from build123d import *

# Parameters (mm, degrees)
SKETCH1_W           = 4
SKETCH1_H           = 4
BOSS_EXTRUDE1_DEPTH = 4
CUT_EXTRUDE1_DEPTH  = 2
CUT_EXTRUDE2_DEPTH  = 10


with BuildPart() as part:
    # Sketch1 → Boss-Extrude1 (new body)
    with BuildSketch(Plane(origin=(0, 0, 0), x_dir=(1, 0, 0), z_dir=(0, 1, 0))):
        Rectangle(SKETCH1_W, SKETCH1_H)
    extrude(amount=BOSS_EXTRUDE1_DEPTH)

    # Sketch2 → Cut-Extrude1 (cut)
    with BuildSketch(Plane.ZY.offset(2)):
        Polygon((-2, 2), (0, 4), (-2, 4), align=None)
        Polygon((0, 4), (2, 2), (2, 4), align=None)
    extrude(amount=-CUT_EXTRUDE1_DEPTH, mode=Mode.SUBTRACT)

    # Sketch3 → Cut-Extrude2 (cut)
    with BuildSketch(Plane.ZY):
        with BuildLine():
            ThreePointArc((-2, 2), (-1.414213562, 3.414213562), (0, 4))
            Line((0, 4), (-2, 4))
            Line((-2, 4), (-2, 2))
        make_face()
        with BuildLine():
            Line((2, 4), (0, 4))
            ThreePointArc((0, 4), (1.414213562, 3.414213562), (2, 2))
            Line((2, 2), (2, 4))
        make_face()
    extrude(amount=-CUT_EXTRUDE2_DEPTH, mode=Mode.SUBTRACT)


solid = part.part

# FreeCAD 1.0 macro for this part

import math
import FreeCAD as App
import Part
import Sketcher

V = App.Vector
Q = App.Units.Quantity

doc = App.newDocument("Part")
body = doc.addObject("PartDesign::Body", "Body")

sketch1 = body.newObject("Sketcher::SketchObject", "Sketch")
sketch1.AttachmentSupport = (doc.getObject("XZ_Plane"), [""])
sketch1.MapMode = "FlatFace"
sketch1.addGeometry([
    Part.LineSegment(V(-2, -2, 0), V(-2, 2, 0)),
    Part.LineSegment(V(-2, 2, 0), V(2, 2, 0)),
    Part.LineSegment(V(2, 2, 0), V(2, -2, 0)),
    Part.LineSegment(V(2, -2, 0), V(-2, -2, 0)),
], False)
sketch1.addConstraint([
    Sketcher.Constraint("Coincident", 0, 2, 1, 1),
    Sketcher.Constraint("Coincident", 1, 2, 2, 1),
    Sketcher.Constraint("Coincident", 2, 2, 3, 1),
    Sketcher.Constraint("Coincident", 3, 2, 0, 1),
    Sketcher.Constraint("Vertical", 0),
    Sketcher.Constraint("Horizontal", 1),
    Sketcher.Constraint("Vertical", 2),
    Sketcher.Constraint("Horizontal", 3),
    Sketcher.Constraint("Symmetric", 0, 2, 2, 2, -1, 1),
    Sketcher.Constraint("Equal", 3, 0),
    Sketcher.Constraint("DistanceX", 1, 1, 1, 2, Q("4 mm")),
])
pad1 = body.newObject("PartDesign::Pad", "Pad")
pad1.Profile = sketch1
pad1.Length = 4
pad1.Reversed = True

sketch2 = body.newObject("Sketcher::SketchObject", "Sketch001")
sketch2.AttachmentSupport = (doc.getObject("YZ_Plane"), [""])
sketch2.MapMode = "FlatFace"
sketch2.AttachmentOffset = App.Placement(V(0, 0, -2), App.Rotation())
sketch2.addGeometry([
    Part.LineSegment(V(2, -2, 0), V(4, 0, 0)),
    Part.LineSegment(V(4, 0, 0), V(4, -2, 0)),
    Part.LineSegment(V(4, -2, 0), V(2, -2, 0)),
    Part.LineSegment(V(4, 0, 0), V(2, 2, 0)),
    Part.LineSegment(V(2, 2, 0), V(4, 2, 0)),
    Part.LineSegment(V(4, 2, 0), V(4, 0, 0)),
], False)
sketch2.addConstraint([
    Sketcher.Constraint("Coincident", 0, 2, 1, 1),
    Sketcher.Constraint("Coincident", 1, 2, 2, 1),
    Sketcher.Constraint("Coincident", 2, 2, 0, 1),
    Sketcher.Constraint("Coincident", 3, 2, 4, 1),
    Sketcher.Constraint("Coincident", 4, 2, 5, 1),
    Sketcher.Constraint("Coincident", 5, 2, 3, 1),
    Sketcher.Constraint("Vertical", 1),
    Sketcher.Constraint("Horizontal", 2),
    Sketcher.Constraint("Horizontal", 4),
    Sketcher.Constraint("Vertical", 5),
    Sketcher.Constraint("Coincident", 5, 2, 0, 2),
    Sketcher.Constraint("Symmetric", 2, 2, 3, 2, -1),
    Sketcher.Constraint("PointOnObject", 0, 2, -1),
    Sketcher.Constraint("Perpendicular", 0, 3),
    Sketcher.Constraint("DistanceX", 2, 2, 2, 1, Q("2 mm")),
    Sketcher.Constraint("DistanceX", -1, 1, 0, 2, Q("4 mm")),
])
pocket1 = body.newObject("PartDesign::Pocket", "Pocket")
pocket1.Profile = sketch2
pocket1.Length = 2
pocket1.Reversed = True

sketch3 = body.newObject("Sketcher::SketchObject", "Sketch002")
sketch3.AttachmentSupport = (doc.getObject("YZ_Plane"), [""])
sketch3.MapMode = "FlatFace"
sketch3.addGeometry([
    Part.ArcOfCircle(Part.Circle(V(2, 0, 0), V(0, 0, 1), 2), math.radians(-90), math.radians(0)),
    Part.LineSegment(V(4, 0, 0), V(4, -2, 0)),
    Part.LineSegment(V(4, -2, 0), V(2, -2, 0)),
    Part.LineSegment(V(4, 2, 0), V(4, 0, 0)),
    Part.ArcOfCircle(Part.Circle(V(2, 0, 0), V(0, 0, 1), 2), math.radians(0), math.radians(90)),
    Part.LineSegment(V(2, 2, 0), V(4, 2, 0)),
], False)
sketch3.addConstraint([
    Sketcher.Constraint("Tangent", 0, 2, 1, 1),
    Sketcher.Constraint("Coincident", 1, 2, 2, 1),
    Sketcher.Constraint("Tangent", 2, 2, 0, 1),
    Sketcher.Constraint("Tangent", 3, 2, 4, 1),
    Sketcher.Constraint("Tangent", 4, 2, 5, 1),
    Sketcher.Constraint("Coincident", 5, 2, 3, 1),
    Sketcher.Constraint("Vertical", 1),
    Sketcher.Constraint("Horizontal", 2),
    Sketcher.Constraint("Vertical", 3),
    Sketcher.Constraint("Horizontal", 5),
    Sketcher.Constraint("Coincident", 4, 3, 0, 3),
    Sketcher.Constraint("Equal", 0, 4),
    Sketcher.Constraint("PointOnObject", 0, 3, -1),
    Sketcher.Constraint("Radius", 0, Q("2 mm")),
    Sketcher.Constraint("DistanceX", -1, 1, 0, 3, Q("2 mm")),
])
pocket2 = body.newObject("PartDesign::Pocket", "Pocket001")
pocket2.Profile = sketch3
pocket2.Length = 10
pocket2.Reversed = True

doc.recompute()
